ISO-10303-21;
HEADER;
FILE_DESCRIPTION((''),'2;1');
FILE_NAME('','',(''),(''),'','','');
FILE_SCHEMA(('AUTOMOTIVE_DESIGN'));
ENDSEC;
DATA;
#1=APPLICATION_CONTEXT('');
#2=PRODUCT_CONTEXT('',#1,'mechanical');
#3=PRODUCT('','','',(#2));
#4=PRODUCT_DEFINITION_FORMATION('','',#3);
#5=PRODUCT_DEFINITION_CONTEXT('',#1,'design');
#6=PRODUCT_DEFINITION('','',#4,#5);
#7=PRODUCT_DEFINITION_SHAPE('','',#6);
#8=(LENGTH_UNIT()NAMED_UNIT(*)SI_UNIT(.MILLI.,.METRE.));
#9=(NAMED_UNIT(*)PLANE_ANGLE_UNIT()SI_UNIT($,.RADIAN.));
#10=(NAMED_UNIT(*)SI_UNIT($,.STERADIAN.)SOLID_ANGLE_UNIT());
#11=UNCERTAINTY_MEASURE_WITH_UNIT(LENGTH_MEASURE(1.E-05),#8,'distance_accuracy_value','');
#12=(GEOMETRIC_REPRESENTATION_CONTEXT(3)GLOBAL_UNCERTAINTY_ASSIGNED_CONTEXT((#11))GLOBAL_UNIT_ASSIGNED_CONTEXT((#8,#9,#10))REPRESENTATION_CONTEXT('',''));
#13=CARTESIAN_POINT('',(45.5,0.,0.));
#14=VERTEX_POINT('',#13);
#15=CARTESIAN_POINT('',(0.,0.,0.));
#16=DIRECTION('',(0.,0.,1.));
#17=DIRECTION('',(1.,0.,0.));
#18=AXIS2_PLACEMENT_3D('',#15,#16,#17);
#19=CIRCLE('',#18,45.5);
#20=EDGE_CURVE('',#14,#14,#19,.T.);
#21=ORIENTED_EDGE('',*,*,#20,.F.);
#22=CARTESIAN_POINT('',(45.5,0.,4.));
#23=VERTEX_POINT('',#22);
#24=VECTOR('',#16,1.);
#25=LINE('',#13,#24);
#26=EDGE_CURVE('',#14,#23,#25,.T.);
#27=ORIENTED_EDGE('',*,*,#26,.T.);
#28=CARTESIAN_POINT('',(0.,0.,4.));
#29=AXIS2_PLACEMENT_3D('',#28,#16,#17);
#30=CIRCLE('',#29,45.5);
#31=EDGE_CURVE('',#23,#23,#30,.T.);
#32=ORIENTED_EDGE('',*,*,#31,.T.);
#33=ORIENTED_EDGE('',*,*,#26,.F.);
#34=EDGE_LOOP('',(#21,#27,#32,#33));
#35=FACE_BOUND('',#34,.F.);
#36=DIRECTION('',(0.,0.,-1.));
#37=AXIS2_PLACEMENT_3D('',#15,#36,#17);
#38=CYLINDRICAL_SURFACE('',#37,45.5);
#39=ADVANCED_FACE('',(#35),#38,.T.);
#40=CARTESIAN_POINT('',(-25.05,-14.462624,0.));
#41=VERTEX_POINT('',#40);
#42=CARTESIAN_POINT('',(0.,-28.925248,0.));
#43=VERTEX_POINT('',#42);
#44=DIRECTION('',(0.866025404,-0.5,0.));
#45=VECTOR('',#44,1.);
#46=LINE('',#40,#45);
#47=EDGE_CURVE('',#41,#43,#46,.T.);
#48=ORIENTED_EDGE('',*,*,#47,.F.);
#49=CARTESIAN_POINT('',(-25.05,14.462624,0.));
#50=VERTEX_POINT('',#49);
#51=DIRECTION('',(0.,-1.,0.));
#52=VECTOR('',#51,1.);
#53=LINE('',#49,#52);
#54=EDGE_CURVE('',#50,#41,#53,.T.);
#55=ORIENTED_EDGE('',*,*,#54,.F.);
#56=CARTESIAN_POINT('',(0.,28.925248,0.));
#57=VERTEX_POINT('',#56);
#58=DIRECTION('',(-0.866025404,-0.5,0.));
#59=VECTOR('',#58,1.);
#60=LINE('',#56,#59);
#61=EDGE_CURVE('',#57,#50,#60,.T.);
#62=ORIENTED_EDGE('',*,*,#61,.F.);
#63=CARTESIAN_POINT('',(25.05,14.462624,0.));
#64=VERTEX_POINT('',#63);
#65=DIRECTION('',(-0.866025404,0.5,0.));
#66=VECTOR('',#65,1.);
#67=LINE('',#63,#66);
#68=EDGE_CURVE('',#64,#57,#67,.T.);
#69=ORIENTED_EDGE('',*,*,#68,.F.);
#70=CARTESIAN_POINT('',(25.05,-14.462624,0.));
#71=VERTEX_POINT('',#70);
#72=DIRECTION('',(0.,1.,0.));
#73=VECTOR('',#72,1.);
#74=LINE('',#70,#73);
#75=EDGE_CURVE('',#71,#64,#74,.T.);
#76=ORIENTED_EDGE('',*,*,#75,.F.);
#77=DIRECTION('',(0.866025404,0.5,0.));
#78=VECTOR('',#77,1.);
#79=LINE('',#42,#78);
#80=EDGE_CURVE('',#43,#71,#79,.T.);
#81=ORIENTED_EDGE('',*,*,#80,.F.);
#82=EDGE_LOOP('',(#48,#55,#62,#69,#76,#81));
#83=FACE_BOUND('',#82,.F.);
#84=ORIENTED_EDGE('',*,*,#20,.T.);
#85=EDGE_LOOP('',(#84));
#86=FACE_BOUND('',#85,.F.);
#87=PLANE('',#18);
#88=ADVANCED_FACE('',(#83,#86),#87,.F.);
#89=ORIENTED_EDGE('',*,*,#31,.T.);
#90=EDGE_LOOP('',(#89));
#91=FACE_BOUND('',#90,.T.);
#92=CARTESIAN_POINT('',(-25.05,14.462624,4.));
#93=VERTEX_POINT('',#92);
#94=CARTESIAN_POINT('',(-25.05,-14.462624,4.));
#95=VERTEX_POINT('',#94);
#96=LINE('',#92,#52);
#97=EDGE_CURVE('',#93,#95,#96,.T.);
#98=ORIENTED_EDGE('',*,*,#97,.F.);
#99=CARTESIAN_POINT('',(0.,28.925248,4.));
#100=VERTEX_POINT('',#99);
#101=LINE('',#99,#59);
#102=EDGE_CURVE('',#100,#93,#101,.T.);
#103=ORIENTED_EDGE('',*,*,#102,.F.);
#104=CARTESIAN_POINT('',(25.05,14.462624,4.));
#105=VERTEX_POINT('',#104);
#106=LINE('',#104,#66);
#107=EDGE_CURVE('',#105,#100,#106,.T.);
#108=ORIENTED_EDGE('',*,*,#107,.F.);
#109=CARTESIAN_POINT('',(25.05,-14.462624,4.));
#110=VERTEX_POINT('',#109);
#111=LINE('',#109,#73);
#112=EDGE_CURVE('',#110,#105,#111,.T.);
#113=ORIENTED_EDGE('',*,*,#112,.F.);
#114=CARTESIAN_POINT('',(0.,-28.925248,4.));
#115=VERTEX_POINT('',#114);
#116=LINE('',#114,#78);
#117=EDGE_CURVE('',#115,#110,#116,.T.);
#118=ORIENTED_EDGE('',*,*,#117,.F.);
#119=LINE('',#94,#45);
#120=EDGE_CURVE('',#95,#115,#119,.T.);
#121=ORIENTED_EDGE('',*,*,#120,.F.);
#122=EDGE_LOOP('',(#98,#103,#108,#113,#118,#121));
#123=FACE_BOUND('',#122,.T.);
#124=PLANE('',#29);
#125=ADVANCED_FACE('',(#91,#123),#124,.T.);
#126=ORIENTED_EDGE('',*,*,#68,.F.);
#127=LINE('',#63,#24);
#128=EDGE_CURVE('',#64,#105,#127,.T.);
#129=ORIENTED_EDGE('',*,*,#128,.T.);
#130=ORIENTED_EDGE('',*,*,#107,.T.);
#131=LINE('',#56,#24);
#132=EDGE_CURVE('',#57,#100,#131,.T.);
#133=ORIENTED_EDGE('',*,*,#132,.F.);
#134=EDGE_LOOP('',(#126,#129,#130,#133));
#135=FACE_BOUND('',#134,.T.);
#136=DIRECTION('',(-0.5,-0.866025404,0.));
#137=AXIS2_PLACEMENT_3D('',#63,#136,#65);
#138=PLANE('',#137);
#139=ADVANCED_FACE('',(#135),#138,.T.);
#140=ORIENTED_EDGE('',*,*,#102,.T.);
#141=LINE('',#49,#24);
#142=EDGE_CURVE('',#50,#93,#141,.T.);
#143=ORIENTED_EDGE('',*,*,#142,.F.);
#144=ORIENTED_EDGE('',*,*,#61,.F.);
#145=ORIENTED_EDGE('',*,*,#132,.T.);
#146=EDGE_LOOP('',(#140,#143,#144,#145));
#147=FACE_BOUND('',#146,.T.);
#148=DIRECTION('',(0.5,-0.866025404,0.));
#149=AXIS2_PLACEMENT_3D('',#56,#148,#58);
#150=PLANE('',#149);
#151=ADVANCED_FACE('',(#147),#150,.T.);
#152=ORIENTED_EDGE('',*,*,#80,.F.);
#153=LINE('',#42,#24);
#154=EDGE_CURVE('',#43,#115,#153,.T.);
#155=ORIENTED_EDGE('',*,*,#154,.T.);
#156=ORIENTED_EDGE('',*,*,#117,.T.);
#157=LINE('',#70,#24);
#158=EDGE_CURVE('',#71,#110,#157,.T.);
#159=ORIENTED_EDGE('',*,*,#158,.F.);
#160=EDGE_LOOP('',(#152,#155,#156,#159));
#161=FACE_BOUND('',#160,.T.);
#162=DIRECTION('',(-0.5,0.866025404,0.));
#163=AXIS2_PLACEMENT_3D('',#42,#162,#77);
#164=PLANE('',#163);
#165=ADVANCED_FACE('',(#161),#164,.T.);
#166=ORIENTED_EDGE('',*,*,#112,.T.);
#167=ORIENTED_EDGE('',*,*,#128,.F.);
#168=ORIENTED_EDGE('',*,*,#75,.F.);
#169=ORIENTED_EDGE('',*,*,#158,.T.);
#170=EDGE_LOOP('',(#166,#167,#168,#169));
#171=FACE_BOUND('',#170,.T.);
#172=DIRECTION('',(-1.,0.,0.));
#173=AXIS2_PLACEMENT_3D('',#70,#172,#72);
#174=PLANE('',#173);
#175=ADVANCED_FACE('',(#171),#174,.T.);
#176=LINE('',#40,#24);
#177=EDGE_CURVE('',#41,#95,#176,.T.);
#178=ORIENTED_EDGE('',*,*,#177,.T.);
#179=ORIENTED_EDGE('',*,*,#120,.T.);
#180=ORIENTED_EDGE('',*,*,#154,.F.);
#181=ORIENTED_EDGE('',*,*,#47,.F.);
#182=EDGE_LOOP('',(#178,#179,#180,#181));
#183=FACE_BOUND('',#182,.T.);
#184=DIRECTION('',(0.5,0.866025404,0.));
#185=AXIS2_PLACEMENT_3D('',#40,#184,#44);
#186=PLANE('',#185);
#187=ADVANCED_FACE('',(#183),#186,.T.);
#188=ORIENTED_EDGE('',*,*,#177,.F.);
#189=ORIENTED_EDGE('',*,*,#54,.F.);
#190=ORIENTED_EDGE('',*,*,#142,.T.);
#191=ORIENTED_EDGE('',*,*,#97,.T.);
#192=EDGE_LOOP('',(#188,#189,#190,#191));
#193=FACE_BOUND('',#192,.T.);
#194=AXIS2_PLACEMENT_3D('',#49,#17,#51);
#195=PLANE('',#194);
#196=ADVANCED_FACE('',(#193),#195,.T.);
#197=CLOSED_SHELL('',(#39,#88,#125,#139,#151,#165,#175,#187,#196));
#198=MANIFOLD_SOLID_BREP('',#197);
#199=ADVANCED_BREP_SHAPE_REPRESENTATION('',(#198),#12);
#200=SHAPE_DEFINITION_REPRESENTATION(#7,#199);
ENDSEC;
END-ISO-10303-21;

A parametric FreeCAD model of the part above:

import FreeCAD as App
import Part
import Sketcher
Q = App.Units.Quantity


def add_polygon(sketch, points):
    """Adds a closed chain of lines whose ends are joined by coincident constraints."""
    first, n = sketch.GeometryCount, len(points)
    for a, b in zip(points, points[1:] + points[:1]):
        sketch.addGeometry(Part.LineSegment(App.Vector(*a, 0), App.Vector(*b, 0)), False)
    for i in range(n):
        sketch.addConstraint(Sketcher.Constraint("Coincident", first + i, 2, first + (i + 1) % n, 1))

doc = App.newDocument("Part")
body = doc.addObject("PartDesign::Body", "Body")

sketch1 = body.newObject("Sketcher::SketchObject", "Sketch")
sketch1.AttachmentSupport = (doc.getObject("XY_Plane"), [""])
sketch1.MapMode = "FlatFace"
sketch1.addGeometry(Part.Circle(App.Vector(0, 0, 0), App.Vector(0, 0, 1), 45.5), False)
add_polygon(sketch1, [(-25.05, 14.462624), (0, 28.925248), (25.05, 14.462624), (25.05, -14.462624), (0, -28.925248), (-25.05, -14.462624)])
sketch1.addConstraint([
    Sketcher.Constraint("Vertical", 3),
    Sketcher.Constraint("Vertical", 6),
    Sketcher.Constraint("Coincident", 0, 3, -1, 1),
    Sketcher.Constraint("Symmetric", 1, 2, 4, 2, -1, 1),
    Sketcher.Constraint("Symmetric", 2, 2, 5, 2, -1, 1),
    Sketcher.Constraint("PointOnObject", 1, 2, -2),
    Sketcher.Constraint("Parallel", 1, 4),
    Sketcher.Constraint("Horizontal", 3, 2, 5, 2),
    Sketcher.Constraint("Diameter", 0, Q("91 mm")),
    Sketcher.Constraint("Angle", 1, Q("30 deg")),
    Sketcher.Constraint("DistanceX", 5, 2, 3, 2, Q("50.1 mm")),
    Sketcher.Constraint("DistanceY", 3, 2, 3, 1, Q("28.925248 mm")),
])
pad1 = body.newObject("PartDesign::Pad", "Pad")
pad1.Profile = sketch1
pad1.Length = 4

doc.recompute()
